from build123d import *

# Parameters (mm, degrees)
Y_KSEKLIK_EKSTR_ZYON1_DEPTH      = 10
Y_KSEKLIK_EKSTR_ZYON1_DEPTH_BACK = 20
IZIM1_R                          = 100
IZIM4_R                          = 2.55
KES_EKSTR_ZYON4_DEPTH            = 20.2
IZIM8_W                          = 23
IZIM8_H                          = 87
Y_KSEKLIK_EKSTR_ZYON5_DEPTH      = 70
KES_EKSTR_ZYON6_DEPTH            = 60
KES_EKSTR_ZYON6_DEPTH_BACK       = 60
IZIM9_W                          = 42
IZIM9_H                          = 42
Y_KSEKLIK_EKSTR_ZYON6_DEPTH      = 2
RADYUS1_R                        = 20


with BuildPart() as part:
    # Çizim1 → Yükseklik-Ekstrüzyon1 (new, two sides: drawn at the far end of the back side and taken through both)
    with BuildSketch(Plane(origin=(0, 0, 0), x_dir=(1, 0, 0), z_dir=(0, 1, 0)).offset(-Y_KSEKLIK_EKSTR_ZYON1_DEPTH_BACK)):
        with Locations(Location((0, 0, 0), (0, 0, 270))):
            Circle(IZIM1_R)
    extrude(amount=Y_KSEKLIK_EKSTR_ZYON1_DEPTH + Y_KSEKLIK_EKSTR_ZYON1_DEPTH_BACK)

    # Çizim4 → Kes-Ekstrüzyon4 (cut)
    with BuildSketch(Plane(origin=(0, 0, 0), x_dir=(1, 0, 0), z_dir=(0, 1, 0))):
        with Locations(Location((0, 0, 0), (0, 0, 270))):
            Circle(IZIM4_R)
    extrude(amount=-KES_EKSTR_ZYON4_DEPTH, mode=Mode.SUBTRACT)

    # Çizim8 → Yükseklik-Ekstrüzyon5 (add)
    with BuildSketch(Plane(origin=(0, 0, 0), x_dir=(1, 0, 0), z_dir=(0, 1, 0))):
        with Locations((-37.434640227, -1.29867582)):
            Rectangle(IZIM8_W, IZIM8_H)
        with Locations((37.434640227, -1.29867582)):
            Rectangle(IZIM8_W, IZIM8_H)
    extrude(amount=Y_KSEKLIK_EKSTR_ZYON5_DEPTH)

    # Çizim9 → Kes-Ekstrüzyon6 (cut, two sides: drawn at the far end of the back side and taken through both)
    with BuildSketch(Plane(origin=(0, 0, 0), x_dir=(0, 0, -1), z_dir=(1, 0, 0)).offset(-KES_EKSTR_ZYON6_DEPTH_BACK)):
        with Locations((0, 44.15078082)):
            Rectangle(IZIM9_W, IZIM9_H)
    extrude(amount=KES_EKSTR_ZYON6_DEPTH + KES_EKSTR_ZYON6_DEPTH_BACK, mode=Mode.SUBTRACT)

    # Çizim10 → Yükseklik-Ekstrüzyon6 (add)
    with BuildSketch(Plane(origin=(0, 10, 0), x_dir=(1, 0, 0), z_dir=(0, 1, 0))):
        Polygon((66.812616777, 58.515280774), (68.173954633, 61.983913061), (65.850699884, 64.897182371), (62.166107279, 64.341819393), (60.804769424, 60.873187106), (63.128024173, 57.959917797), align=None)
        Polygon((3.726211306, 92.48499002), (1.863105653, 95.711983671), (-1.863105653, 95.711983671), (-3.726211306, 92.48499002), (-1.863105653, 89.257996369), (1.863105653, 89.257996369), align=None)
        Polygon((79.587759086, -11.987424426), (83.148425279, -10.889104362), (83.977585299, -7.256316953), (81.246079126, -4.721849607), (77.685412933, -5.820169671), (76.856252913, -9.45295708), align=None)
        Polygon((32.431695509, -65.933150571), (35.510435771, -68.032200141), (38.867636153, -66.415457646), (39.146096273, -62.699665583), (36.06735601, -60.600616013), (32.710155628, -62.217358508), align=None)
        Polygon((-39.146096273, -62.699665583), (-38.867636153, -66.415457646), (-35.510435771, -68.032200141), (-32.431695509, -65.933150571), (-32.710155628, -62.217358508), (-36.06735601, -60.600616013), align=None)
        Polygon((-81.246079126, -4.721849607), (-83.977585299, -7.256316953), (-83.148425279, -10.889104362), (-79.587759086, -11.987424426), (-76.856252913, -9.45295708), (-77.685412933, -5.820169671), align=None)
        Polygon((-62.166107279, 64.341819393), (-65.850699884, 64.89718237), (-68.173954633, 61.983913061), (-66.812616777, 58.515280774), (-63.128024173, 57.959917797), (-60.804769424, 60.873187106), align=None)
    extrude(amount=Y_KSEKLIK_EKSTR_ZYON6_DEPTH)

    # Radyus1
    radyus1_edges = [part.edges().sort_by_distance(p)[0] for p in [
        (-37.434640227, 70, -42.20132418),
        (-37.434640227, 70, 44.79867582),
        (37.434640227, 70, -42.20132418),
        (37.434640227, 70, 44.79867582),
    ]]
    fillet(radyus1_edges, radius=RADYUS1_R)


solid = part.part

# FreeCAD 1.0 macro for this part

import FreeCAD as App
import Part
import Sketcher
Q = App.Units.Quantity


def edges_at(feature, points):
    """Names of the edges that pass closest to the given points."""
    edges = feature.Shape.Edges
    near = lambda p: min(range(len(edges)), key=lambda i: edges[i].distToShape(Part.Vertex(*p))[0])
    return sorted({f"Edge{near(p) + 1}" for p in points})


def add_polygon(sketch, points):
    """Adds a closed chain of lines whose ends are joined by coincident constraints."""
    first, n = sketch.GeometryCount, len(points)
    for a, b in zip(points, points[1:] + points[:1]):
        sketch.addGeometry(Part.LineSegment(App.Vector(*a, 0), App.Vector(*b, 0)), False)
    for i in range(n):
        sketch.addConstraint(Sketcher.Constraint("Coincident", first + i, 2, first + (i + 1) % n, 1))

doc = App.newDocument("Part")
params = doc.addObject("Spreadsheet::Sheet", "Params")
for row, (alias, value) in enumerate([
    ("sketch1_diameter", "200 mm"),
    ("pad1_length", "10 mm"),
    ("pad1_length2", "20 mm"),
    ("sketch2_diameter", "5.1 mm"),
    ("pocket1_length", "20.2 mm"),
    ("sketch3_width", "23 mm"),
    ("sketch3_height", "87 mm"),
    ("pad2_length", "70 mm"),
    ("sketch4_width", "42 mm"),
    ("pad3_length", "2 mm"),
    ("fillet_radius", "20 mm"),
], start=1):
    params.set(f"A{row}", alias)
    params.set(f"B{row}", "=" + value)
    params.setAlias(f"B{row}", alias)

body = doc.addObject("PartDesign::Body", "Body")

sketch1 = body.newObject("Sketcher::SketchObject", "Sketch")
sketch1.AttachmentSupport = (doc.getObject("XZ_Plane"), [""])
sketch1.MapMode = "FlatFace"
sketch1.addGeometry(Part.Circle(App.Vector(0, 0, 0), App.Vector(0, 0, 1), 100), False)
sketch1.addConstraint([
    Sketcher.Constraint("Coincident", 0, 3, -1, 1),
    Sketcher.Constraint("Diameter", 0, 200.0),
])
sketch1.setExpression("Constraints[1]", "Params.sketch1_diameter")
pad1 = body.newObject("PartDesign::Pad", "Pad")
pad1.Profile = sketch1
pad1.Type = "TwoLengths"
pad1.setExpression("Length", "Params.pad1_length")
pad1.setExpression("Length2", "Params.pad1_length2")
pad1.Reversed = True

sketch2 = body.newObject("Sketcher::SketchObject", "Sketch001")
sketch2.AttachmentSupport = (doc.getObject("XZ_Plane"), [""])
sketch2.MapMode = "FlatFace"
sketch2.addGeometry(Part.Circle(App.Vector(0, 0, 0), App.Vector(0, 0, 1), 2.5), False)
sketch2.addConstraint([
    Sketcher.Constraint("Coincident", 0, 3, -1, 1),
    Sketcher.Constraint("Diameter", 0, 5.1),
])
sketch2.setExpression("Constraints[1]", "Params.sketch2_diameter")
pocket1 = body.newObject("PartDesign::Pocket", "Pocket")
pocket1.Profile = sketch2
pocket1.setExpression("Length", "Params.pocket1_length")
pocket1.Reversed = True

sketch3 = body.newObject("Sketcher::SketchObject", "Sketch002")
sketch3.AttachmentSupport = (doc.getObject("XZ_Plane"), [""])
sketch3.MapMode = "FlatFace"
add_polygon(sketch3, [(-49, -42), (-49, 45), (-26, 45), (-26, -42)])
add_polygon(sketch3, [(26, -42), (26, 45), (49, 45), (49, -42)])
sketch3.addConstraint([
    Sketcher.Constraint("Vertical", 0),
    Sketcher.Constraint("Horizontal", 1),
    Sketcher.Constraint("Vertical", 2),
    Sketcher.Constraint("Horizontal", 3),
    Sketcher.Constraint("Vertical", 4),
    Sketcher.Constraint("Horizontal", 5),
    Sketcher.Constraint("Vertical", 6),
    Sketcher.Constraint("Horizontal", 7),
    Sketcher.Constraint("Symmetric", 1, 2, 4, 2, -2),
    Sketcher.Constraint("Symmetric", 3, 2, 6, 2, -2),
    Sketcher.Constraint("DistanceX", 1, 1, 1, 2, 23.0),
    Sketcher.Constraint("DistanceY", 0, 1, 0, 2, 87.0),
    Sketcher.Constraint("DistanceX", 0, 2, -1, 1, 48.93464),
    Sketcher.Constraint("DistanceY", -1, 1, 0, 2, 44.798676),
])
sketch3.setExpression("Constraints[18]", "Params.sketch3_width")
sketch3.setExpression("Constraints[19]", "Params.sketch3_height")
pad2 = body.newObject("PartDesign::Pad", "Pad001")
pad2.Profile = sketch3
pad2.setExpression("Length", "Params.pad2_length")
pad2.Reversed = True

sketch4 = body.newObject("Sketcher::SketchObject", "Sketch003")
sketch4.AttachmentSupport = (doc.getObject("YZ_Plane"), [""])
sketch4.MapMode = "FlatFace"
add_polygon(sketch4, [(65, 21), (23, 21), (23, -21), (65, -21)])
sketch4.addConstraint([
    Sketcher.Constraint("Horizontal", 0),
    Sketcher.Constraint("Vertical", 1),
    Sketcher.Constraint("Horizontal", 2),
    Sketcher.Constraint("Vertical", 3),
    Sketcher.Constraint("Equal", 2, 1),
    Sketcher.Constraint("DistanceX", 0, 2, 0, 1, 42.0),
    Sketcher.Constraint("DistanceY", -1, 1, 0, 2, 21.0),
    Sketcher.Constraint("DistanceX", -1, 1, 0, 2, 23.150781),
])
sketch4.setExpression("Constraints[9]", "Params.sketch4_width")
pocket2 = body.newObject("PartDesign::Pocket", "Pocket001")
pocket2.Profile = sketch4
pocket2.Type = "ThroughAll"
pocket2.Midplane = True

sketch5 = body.newObject("Sketcher::SketchObject", "Sketch004")
sketch5.AttachmentSupport = (doc.getObject("XZ_Plane"), [""])
sketch5.MapMode = "FlatFace"
sketch5.AttachmentOffset = App.Placement(App.Vector(0, 0, -10), App.Rotation())
add_polygon(sketch5, [(66.8, -58.5), (68.2, -62), (65.9, -64.9), (62.2, -64.3), (60.8, -60.9), (63.1, -58)])
add_polygon(sketch5, [(3.7, -92.5), (1.9, -95.7), (-1.9, -95.7), (-3.7, -92.5), (-1.9, -89.3), (1.9, -89.3)])
add_polygon(sketch5, [(79.6, 12), (83.1, 10.9), (84, 7.3), (81.2, 4.7), (77.7, 5.8), (76.9, 9.5)])
add_polygon(sketch5, [(32.4, 65.9), (35.5, 68), (38.9, 66.4), (39.1, 62.7), (36.1, 60.6), (32.7, 62.2)])
add_polygon(sketch5, [(-39.1, 62.7), (-38.9, 66.4), (-35.5, 68), (-32.4, 65.9), (-32.7, 62.2), (-36.1, 60.6)])
add_polygon(sketch5, [(-81.2, 4.7), (-84, 7.3), (-83.1, 10.9), (-79.6, 12), (-76.9, 9.5), (-77.7, 5.8)])
add_polygon(sketch5, [(-62.2, -64.3), (-65.9, -64.9), (-68.2, -62), (-66.8, -58.5), (-63.1, -58), (-60.8, -60.9)])
sketch5.addConstraint([
    Sketcher.Constraint("Horizontal", 7),
    Sketcher.Constraint("Horizontal", 10),
    Sketcher.Constraint("Symmetric", 8, 2, 11, 2, -2),
    Sketcher.Constraint("Symmetric", 19, 2, 24, 2, -2),
    Sketcher.Constraint("Symmetric", 18, 2, 25, 2, -2),
    Sketcher.Constraint("Symmetric", 23, 2, 26, 2, -2),
    Sketcher.Constraint("Symmetric", 22, 2, 27, 2, -2),
    Sketcher.Constraint("Symmetric", 21, 2, 28, 2, -2),
    Sketcher.Constraint("Symmetric", 20, 2, 29, 2, -2),
    Sketcher.Constraint("Symmetric", 13, 2, 30, 2, -2),
    Sketcher.Constraint("Symmetric", 12, 2, 31, 2, -2),
    Sketcher.Constraint("Symmetric", 17, 2, 32, 2, -2),
    Sketcher.Constraint("Symmetric", 16, 2, 33, 2, -2),
    Sketcher.Constraint("Symmetric", 15, 2, 34, 2, -2),
    Sketcher.Constraint("Symmetric", 14, 2, 35, 2, -2),
    Sketcher.Constraint("Symmetric", 1, 2, 36, 2, -2),
    Sketcher.Constraint("Symmetric", 0, 2, 37, 2, -2),
    Sketcher.Constraint("Symmetric", 5, 2, 38, 2, -2),
    Sketcher.Constraint("Symmetric", 4, 2, 39, 2, -2),
    Sketcher.Constraint("Symmetric", 3, 2, 40, 2, -2),
    Sketcher.Constraint("Symmetric", 2, 2, 41, 2, -2),
    Sketcher.Constraint("Parallel", 0, 3),
    Sketcher.Constraint("Parallel", 1, 4),
    Sketcher.Constraint("Parallel", 2, 5),
    Sketcher.Constraint("Parallel", 6, 9),
    Sketcher.Constraint("Parallel", 8, 11),
    Sketcher.Constraint("Parallel", 12, 15),
    Sketcher.Constraint("Parallel", 13, 16),
    Sketcher.Constraint("Parallel", 14, 17),
    Sketcher.Constraint("Parallel", 18, 21),
    Sketcher.Constraint("Parallel", 19, 22),
    Sketcher.Constraint("Parallel", 20, 23),
    Sketcher.Constraint("Vertical", 7, 2, 9, 2),
    Sketcher.Constraint("Vertical", 6, 2, 10, 2),
    Sketcher.Constraint("Equal", 0, 1),
    Sketcher.Constraint("Equal", 1, 2),
    Sketcher.Constraint("Equal", 2, 3),
    Sketcher.Constraint("Equal", 5, 6),
    Sketcher.Constraint("Equal", 11, 12),
    Sketcher.Constraint("Equal", 12, 13),
    Sketcher.Constraint("Equal", 13, 14),
    Sketcher.Constraint("Equal", 14, 15),
    Sketcher.Constraint("Equal", 17, 18),
    Sketcher.Constraint("Equal", 18, 19),
    Sketcher.Constraint("Equal", 19, 20),
    Sketcher.Constraint("Equal", 20, 21),
    Sketcher.Constraint("Angle", 6, Q("-120 deg")),
    Sketcher.Constraint("DistanceX", 6, 2, 2, 2, 60.303002),
    Sketcher.Constraint("DistanceX", 7, 2, 7, 1, 3.726211),
    Sketcher.Constraint("DistanceX", -1, 1, 1, 2, 65.8507),
    Sketcher.Constraint("DistanceY", -1, 1, 18, 2, 68.0322),
    Sketcher.Constraint("DistanceY", 2, 2, 4, 2, 6.381902),
    Sketcher.Constraint("DistanceY", 6, 2, 1, 2, 30.814801),
    Sketcher.Constraint("DistanceX", 4, 2, 12, 2, 20.020401),
    Sketcher.Constraint("DistanceX", 18, 2, 19, 2, 3.3572),
    Sketcher.Constraint("DistanceY", 16, 2, 19, 2, 56.962501),
    Sketcher.Constraint("DistanceY", 22, 2, 19, 2, 4.198099),
    Sketcher.Constraint("DistanceX", 23, 2, 20, 2, 6.714401),
    Sketcher.Constraint("DistanceY", 30, 2, 28, 2, 53.344299),
    Sketcher.Constraint("Distance", 0, 3.726211),
    Sketcher.Constraint("DistanceY", 2, 2, -1, 1, 64.341819),
    Sketcher.Constraint("DistanceX", -1, 1, 3, 2, 60.804769),
    Sketcher.Constraint("DistanceX", -1, 1, 14, 2, 81.246079),
    Sketcher.Constraint("DistanceY", -1, 1, 14, 2, 4.72185),
    Sketcher.Constraint("DistanceX", 18, 2, 12, 2, 47.63799),
])
pad3 = body.newObject("PartDesign::Pad", "Pad002")
pad3.Profile = sketch5
pad3.setExpression("Length", "Params.pad3_length")
pad3.Reversed = True
doc.recompute()

fillet = body.newObject("PartDesign::Fillet", "Fillet")
fillet.Base = (pad3, edges_at(pad3, [
    (-37.435, 70, -42.201),
    (-37.435, 70, 44.799),
    (37.435, 70, -42.201),
    (37.435, 70, 44.799),
]))
fillet.setExpression("Radius", "Params.fillet_radius")

doc.recompute()
